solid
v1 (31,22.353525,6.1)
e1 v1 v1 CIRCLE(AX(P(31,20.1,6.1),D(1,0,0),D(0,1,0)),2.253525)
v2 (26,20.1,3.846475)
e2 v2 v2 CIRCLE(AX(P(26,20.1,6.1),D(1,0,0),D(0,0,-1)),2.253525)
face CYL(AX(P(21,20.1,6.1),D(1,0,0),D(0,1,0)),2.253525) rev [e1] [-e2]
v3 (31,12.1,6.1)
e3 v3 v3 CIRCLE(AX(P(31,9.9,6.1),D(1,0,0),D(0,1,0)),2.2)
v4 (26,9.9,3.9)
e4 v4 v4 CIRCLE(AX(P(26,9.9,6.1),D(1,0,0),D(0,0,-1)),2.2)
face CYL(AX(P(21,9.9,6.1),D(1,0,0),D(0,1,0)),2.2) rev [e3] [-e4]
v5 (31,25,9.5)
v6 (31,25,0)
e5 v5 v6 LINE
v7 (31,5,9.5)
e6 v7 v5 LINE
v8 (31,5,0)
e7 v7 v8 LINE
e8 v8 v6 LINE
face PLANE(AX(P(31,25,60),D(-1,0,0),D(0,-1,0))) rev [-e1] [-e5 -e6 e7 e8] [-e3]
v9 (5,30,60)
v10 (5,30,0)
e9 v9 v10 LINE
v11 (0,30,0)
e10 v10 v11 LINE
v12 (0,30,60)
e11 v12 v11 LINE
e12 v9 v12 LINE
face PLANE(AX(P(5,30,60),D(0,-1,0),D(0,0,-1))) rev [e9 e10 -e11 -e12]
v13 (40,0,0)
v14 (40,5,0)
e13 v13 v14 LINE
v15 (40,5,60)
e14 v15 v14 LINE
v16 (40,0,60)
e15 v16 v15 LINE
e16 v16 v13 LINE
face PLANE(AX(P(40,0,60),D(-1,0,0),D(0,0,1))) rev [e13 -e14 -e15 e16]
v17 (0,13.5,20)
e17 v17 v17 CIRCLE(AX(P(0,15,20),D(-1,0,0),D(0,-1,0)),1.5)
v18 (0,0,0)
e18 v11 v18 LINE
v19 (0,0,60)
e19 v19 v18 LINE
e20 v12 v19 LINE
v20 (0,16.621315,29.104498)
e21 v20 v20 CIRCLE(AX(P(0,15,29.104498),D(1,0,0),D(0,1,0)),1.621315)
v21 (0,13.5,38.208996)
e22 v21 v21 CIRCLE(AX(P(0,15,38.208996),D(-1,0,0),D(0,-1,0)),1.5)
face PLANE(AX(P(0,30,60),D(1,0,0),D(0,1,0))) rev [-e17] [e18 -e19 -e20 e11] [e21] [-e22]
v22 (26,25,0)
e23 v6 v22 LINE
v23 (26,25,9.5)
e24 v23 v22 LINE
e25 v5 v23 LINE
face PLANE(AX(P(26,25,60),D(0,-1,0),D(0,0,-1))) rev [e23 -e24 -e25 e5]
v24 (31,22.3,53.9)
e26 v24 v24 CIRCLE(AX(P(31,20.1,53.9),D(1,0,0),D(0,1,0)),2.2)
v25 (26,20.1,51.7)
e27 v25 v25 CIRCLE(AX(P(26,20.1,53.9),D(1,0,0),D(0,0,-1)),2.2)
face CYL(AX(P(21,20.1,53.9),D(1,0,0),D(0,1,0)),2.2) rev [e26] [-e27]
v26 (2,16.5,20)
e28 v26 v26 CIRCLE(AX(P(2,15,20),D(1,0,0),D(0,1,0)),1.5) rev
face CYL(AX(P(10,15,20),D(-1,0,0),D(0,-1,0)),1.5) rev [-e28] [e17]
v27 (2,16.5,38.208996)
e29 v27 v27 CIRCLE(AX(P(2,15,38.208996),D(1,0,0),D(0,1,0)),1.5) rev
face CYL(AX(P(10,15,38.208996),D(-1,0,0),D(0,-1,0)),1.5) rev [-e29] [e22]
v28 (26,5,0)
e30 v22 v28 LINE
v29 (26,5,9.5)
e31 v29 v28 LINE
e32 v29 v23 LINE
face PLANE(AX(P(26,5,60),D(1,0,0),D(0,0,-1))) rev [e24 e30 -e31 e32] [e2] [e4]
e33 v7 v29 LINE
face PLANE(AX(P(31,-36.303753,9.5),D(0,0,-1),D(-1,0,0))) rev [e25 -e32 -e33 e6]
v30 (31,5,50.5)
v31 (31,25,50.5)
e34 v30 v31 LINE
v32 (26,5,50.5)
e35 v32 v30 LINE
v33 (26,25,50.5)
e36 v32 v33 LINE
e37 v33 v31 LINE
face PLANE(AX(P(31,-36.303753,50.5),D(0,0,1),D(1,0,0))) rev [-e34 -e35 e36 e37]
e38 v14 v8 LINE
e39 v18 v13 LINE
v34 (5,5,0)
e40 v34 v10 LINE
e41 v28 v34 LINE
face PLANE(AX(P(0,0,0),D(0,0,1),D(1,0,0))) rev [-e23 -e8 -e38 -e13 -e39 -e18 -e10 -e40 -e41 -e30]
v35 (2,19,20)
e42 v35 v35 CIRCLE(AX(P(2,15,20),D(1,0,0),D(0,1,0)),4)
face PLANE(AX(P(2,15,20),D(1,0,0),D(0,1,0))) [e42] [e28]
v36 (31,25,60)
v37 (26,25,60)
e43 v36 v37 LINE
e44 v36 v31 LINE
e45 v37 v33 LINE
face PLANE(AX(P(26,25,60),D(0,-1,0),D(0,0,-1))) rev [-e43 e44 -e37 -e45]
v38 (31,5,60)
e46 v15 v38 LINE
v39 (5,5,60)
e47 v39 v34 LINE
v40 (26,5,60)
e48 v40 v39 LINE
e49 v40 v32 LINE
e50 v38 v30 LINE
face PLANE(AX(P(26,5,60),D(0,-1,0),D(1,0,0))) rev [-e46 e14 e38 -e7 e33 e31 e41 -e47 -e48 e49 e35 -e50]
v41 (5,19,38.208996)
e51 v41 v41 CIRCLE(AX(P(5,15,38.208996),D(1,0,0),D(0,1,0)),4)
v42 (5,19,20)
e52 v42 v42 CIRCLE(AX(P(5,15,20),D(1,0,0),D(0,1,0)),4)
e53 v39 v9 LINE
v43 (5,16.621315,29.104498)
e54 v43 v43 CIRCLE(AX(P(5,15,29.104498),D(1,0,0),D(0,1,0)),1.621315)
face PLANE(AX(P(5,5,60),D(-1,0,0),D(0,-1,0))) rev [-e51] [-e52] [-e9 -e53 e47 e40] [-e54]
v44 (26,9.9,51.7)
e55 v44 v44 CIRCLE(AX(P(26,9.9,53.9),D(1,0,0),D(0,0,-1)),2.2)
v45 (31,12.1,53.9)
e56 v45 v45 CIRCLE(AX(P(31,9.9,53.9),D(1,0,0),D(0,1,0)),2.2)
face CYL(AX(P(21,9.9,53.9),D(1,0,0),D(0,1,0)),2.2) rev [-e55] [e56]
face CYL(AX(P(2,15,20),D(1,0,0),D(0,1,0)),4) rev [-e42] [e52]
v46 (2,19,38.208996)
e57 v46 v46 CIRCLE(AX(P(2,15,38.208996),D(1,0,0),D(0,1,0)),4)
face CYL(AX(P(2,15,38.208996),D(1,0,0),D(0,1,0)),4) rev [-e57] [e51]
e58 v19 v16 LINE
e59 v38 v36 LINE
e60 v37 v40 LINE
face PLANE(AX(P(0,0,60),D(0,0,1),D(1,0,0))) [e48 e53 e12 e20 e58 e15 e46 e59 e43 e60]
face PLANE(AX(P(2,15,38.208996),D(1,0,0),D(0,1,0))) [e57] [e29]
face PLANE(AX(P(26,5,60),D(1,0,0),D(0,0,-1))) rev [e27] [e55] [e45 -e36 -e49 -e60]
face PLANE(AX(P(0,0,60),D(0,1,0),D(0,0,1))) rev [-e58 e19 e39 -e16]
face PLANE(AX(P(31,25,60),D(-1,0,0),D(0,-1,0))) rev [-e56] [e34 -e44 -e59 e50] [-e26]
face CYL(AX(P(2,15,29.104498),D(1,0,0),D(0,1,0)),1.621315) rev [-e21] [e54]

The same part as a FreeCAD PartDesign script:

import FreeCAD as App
import Part
import Sketcher
from FreeCAD import Vector


def add_polygon(sketch, points):
    """Adds a closed chain of lines whose ends are joined by coincident constraints."""
    first, n = sketch.GeometryCount, len(points)
    for a, b in zip(points, points[1:] + points[:1]):
        sketch.addGeometry(Part.LineSegment(App.Vector(*a, 0), App.Vector(*b, 0)), False)
    for i in range(n):
        sketch.addConstraint(Sketcher.Constraint("Coincident", first + i, 2, first + (i + 1) % n, 1))

doc = App.newDocument("Part")
body = doc.addObject("PartDesign::Body", "Body")

# Sketch on XY plane
sketch1 = doc.addObject("Sketcher::SketchObject", "Sketch")
body.addObject(sketch1)
sketch1.AttachmentSupport = (doc.XY_Plane, [""])
sketch1.MapMode = "FlatFace"
add_polygon(sketch1, [(0, 0), (40, 0), (40, 5), (31, 5), (31, 25), (26, 25), (26, 5), (5, 5), (5, 30), (0, 30)])  # lines 0-9
sketch1.addConstraint(Sketcher.Constraint("Horizontal", 0))
sketch1.addConstraint(Sketcher.Constraint("Vertical", 1))
sketch1.addConstraint(Sketcher.Constraint("Horizontal", 2))
sketch1.addConstraint(Sketcher.Constraint("Vertical", 3))
sketch1.addConstraint(Sketcher.Constraint("Horizontal", 4))
sketch1.addConstraint(Sketcher.Constraint("Vertical", 5))
sketch1.addConstraint(Sketcher.Constraint("Horizontal", 6))
sketch1.addConstraint(Sketcher.Constraint("Vertical", 7))
sketch1.addConstraint(Sketcher.Constraint("Horizontal", 8))
sketch1.addConstraint(Sketcher.Constraint("Vertical", 9))
sketch1.addConstraint(Sketcher.Constraint("Coincident", 9, 2, -1, 1))
sketch1.addConstraint(Sketcher.Constraint("Horizontal", 2, 2, 5, 2))
sketch1.addConstraint(Sketcher.Constraint("Equal", 4, 8))
sketch1.addConstraint(Sketcher.Constraint("Equal", 8, 1))
sketch1.addConstraint(Sketcher.Constraint("DistanceX", 0, 1, 0, 2, 40.0))
sketch1.addConstraint(Sketcher.Constraint("DistanceX", 2, 2, 2, 1, 9.0))
sketch1.addConstraint(Sketcher.Constraint("DistanceX", 4, 2, 4, 1, 5.0))
sketch1.addConstraint(Sketcher.Constraint("DistanceY", 3, 1, 3, 2, 20.0))
sketch1.addConstraint(Sketcher.Constraint("DistanceY", 7, 1, 7, 2, 25.0))
pad1 = doc.addObject("PartDesign::Pad", "Pad")
body.addObject(pad1)
pad1.Profile = sketch1
pad1.Length = 60

# Sketch on XZ plane
sketch2 = doc.addObject("Sketcher::SketchObject", "Sketch001")
body.addObject(sketch2)
sketch2.AttachmentSupport = (doc.XZ_Plane, [""])
sketch2.MapMode = "FlatFace"
sketch2.AttachmentOffset = App.Placement(Vector(0, 0, -25), App.Rotation())
add_polygon(sketch2, [(26, 10), (26, 50), (31, 50), (31, 10)])  # lines 0-3
sketch2.addConstraint(Sketcher.Constraint("Vertical", 0))
sketch2.addConstraint(Sketcher.Constraint("Horizontal", 1))
sketch2.addConstraint(Sketcher.Constraint("Vertical", 2))
sketch2.addConstraint(Sketcher.Constraint("Horizontal", 3))
sketch2.addConstraint(Sketcher.Constraint("DistanceX", 1, 1, 1, 2, 5.0))
sketch2.addConstraint(Sketcher.Constraint("DistanceY", 0, 1, 0, 2, 41.0))
sketch2.addConstraint(Sketcher.Constraint("DistanceX", -1, 1, 0, 2, 26.0))
sketch2.addConstraint(Sketcher.Constraint("DistanceY", -1, 1, 0, 2, 50.5))
pocket1 = doc.addObject("PartDesign::Pocket", "Pocket")
body.addObject(pocket1)
pocket1.Profile = sketch2
pocket1.Length = 20
pocket1.Reversed = True

# Sketch on YZ plane
sketch3 = doc.addObject("Sketcher::SketchObject", "Sketch002")
body.addObject(sketch3)
sketch3.AttachmentSupport = (doc.YZ_Plane, [""])
sketch3.MapMode = "FlatFace"
sketch3.AttachmentOffset = App.Placement(Vector(0, 0, 31), App.Rotation())
sketch3.addGeometry(Part.Circle(Vector(20.1, 53.9, 0), Vector(0, 0, 1), 2.2), False)
sketch3.addGeometry(Part.Circle(Vector(9.9, 53.9, 0), Vector(0, 0, 1), 2.2), False)
sketch3.addGeometry(Part.Circle(Vector(9.9, 6.1, 0), Vector(0, 0, 1), 2.2), False)
sketch3.addGeometry(Part.Circle(Vector(20.1, 6.1, 0), Vector(0, 0, 1), 2.3), False)
sketch3.addConstraint(Sketcher.Constraint("Equal", 0, 1))
sketch3.addConstraint(Sketcher.Constraint("Equal", 1, 2))
sketch3.addConstraint(Sketcher.Constraint("Horizontal", 0, 3, 1, 3))
sketch3.addConstraint(Sketcher.Constraint("Horizontal", 2, 3, 3, 3))
sketch3.addConstraint(Sketcher.Constraint("Vertical", 1, 3, 2, 3))
sketch3.addConstraint(Sketcher.Constraint("Vertical", 0, 3, 3, 3))
sketch3.addConstraint(Sketcher.Constraint("Diameter", 0, 4.4))
sketch3.addConstraint(Sketcher.Constraint("DistanceX", -1, 1, 0, 3, 20.1))
sketch3.addConstraint(Sketcher.Constraint("DistanceY", -1, 1, 0, 3, 53.9))
sketch3.addConstraint(Sketcher.Constraint("DistanceX", -1, 1, 1, 3, 9.9))
sketch3.addConstraint(Sketcher.Constraint("DistanceY", -1, 1, 2, 3, 6.1))
sketch3.addConstraint(Sketcher.Constraint("Diameter", 3, 4.507049))
pocket2 = doc.addObject("PartDesign::Pocket", "Pocket001")
body.addObject(pocket2)
pocket2.Profile = sketch3
pocket2.Length = 10

# Sketch on YZ plane
sketch4 = doc.addObject("Sketcher::SketchObject", "Sketch003")
body.addObject(sketch4)
sketch4.AttachmentSupport = (doc.YZ_Plane, [""])
sketch4.MapMode = "FlatFace"
sketch4.addGeometry(Part.Circle(Vector(15, 20, 0), Vector(0, 0, 1), 1.5), False)
sketch4.addGeometry(Part.Circle(Vector(15, 38.2, 0), Vector(0, 0, 1), 1.5), False)
sketch4.addConstraint(Sketcher.Constraint("Equal", 0, 1))
sketch4.addConstraint(Sketcher.Constraint("Vertical", 0, 3, 1, 3))
sketch4.addConstraint(Sketcher.Constraint("Diameter", 0, 3.0))
sketch4.addConstraint(Sketcher.Constraint("DistanceX", -1, 1, 0, 3, 15.0))
sketch4.addConstraint(Sketcher.Constraint("DistanceY", -1, 1, 0, 3, 20.0))
sketch4.addConstraint(Sketcher.Constraint("DistanceY", -1, 1, 1, 3, 38.208996))
pocket3 = doc.addObject("PartDesign::Pocket", "Pocket002")
body.addObject(pocket3)
pocket3.Profile = sketch4
pocket3.Length = 10
pocket3.Reversed = True

# Sketch on YZ plane
sketch5 = doc.addObject("Sketcher::SketchObject", "Sketch004")
body.addObject(sketch5)
sketch5.AttachmentSupport = (doc.YZ_Plane, [""])
sketch5.MapMode = "FlatFace"
sketch5.AttachmentOffset = App.Placement(Vector(0, 0, 5), App.Rotation())
sketch5.addGeometry(Part.Circle(Vector(15, 20, 0), Vector(0, 0, 1), 4), False)
sketch5.addGeometry(Part.Circle(Vector(15, 29.1, 0), Vector(0, 0, 1), 1.6), False)
sketch5.addGeometry(Part.Circle(Vector(15, 38.2, 0), Vector(0, 0, 1), 4), False)
sketch5.addConstraint(Sketcher.Constraint("Equal", 0, 2))
sketch5.addConstraint(Sketcher.Constraint("Vertical", 0, 3, 1, 3))
sketch5.addConstraint(Sketcher.Constraint("Vertical", 1, 3, 2, 3))
sketch5.addConstraint(Sketcher.Constraint("Diameter", 0, 8.0))
sketch5.addConstraint(Sketcher.Constraint("DistanceX", -1, 1, 0, 3, 15.0))
sketch5.addConstraint(Sketcher.Constraint("DistanceY", -1, 1, 0, 3, 20.0))
sketch5.addConstraint(Sketcher.Constraint("Diameter", 1, 3.24263))
sketch5.addConstraint(Sketcher.Constraint("DistanceY", -1, 1, 1, 3, 29.104498))
sketch5.addConstraint(Sketcher.Constraint("DistanceY", 1, 3, 2, 3, 9.104498))
pocket4 = doc.addObject("PartDesign::Pocket", "Pocket003")
body.addObject(pocket4)
pocket4.Profile = sketch5
pocket4.Length = 3

# Sketch on YZ plane
sketch6 = doc.addObject("Sketcher::SketchObject", "Sketch005")
body.addObject(sketch6)
sketch6.AttachmentSupport = (doc.YZ_Plane, [""])
sketch6.MapMode = "FlatFace"
sketch6.AttachmentOffset = App.Placement(Vector(0, 0, 2), App.Rotation())
sketch6.addGeometry(Part.Circle(Vector(15, 29.1, 0), Vector(0, 0, 1), 1.6), False)
sketch6.addConstraint(Sketcher.Constraint("DistanceX", -1, 1, 0, 3, 15.0))
sketch6.addConstraint(Sketcher.Constraint("Diameter", 0, 3.24263))
sketch6.addConstraint(Sketcher.Constraint("DistanceY", -1, 1, 0, 3, 29.104498))
pocket5 = doc.addObject("PartDesign::Pocket", "Pocket004")
body.addObject(pocket5)
pocket5.Profile = sketch6
pocket5.Length = 10

doc.recompute()
